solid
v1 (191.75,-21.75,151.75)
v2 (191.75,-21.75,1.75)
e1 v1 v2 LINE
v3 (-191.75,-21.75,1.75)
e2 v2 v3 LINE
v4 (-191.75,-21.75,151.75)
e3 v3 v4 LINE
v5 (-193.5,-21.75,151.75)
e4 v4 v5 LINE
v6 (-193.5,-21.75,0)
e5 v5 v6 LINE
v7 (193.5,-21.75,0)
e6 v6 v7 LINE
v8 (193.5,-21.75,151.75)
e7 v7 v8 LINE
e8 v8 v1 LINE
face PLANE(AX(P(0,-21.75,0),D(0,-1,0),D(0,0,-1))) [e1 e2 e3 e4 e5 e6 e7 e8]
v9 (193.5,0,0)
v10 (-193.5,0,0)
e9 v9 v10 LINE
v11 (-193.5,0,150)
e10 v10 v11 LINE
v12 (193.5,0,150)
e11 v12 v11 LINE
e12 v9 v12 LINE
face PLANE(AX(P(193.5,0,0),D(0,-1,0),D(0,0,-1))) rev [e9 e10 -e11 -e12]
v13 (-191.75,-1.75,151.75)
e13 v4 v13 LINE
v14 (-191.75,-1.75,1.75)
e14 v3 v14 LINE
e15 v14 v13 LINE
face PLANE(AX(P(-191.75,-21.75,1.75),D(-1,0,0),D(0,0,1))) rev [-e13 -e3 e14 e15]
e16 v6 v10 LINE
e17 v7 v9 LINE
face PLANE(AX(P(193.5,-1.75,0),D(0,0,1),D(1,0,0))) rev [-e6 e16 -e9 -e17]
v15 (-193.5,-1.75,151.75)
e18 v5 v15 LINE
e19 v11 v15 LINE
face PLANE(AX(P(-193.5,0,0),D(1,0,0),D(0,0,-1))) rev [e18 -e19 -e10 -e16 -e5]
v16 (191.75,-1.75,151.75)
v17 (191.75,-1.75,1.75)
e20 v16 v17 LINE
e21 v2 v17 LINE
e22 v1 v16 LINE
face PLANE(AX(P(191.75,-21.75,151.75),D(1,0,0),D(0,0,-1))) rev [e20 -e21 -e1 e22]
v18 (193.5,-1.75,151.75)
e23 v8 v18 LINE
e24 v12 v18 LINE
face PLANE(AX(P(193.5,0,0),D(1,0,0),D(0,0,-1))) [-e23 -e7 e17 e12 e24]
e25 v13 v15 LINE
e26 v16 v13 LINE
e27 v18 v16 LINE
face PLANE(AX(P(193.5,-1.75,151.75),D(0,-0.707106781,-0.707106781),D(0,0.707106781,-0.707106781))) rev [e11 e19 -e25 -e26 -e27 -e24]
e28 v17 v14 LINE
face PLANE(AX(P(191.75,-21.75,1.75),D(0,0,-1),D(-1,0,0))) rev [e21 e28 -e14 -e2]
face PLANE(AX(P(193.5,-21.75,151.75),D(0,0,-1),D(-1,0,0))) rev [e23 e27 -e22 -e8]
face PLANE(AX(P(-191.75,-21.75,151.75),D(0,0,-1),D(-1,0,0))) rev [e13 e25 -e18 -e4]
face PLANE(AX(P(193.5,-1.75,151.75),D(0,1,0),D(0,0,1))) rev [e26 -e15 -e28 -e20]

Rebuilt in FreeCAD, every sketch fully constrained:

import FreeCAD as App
import Part
import Sketcher
Q = App.Units.Quantity

doc = App.newDocument("Part")
params = doc.addObject("Spreadsheet::Sheet", "Params")
for row, (alias, value) in enumerate([
    ("sketch1_height", "150 mm"),
    ("sketch1_width", "1.75 mm"),
    ("pad1_length", "387 mm"),
    ("sketch2_width", "387 mm"),
    ("sketch2_height", "150 mm"),
    ("sketch2_width2", "383.5 mm"),
    ("sketch2_height2", "151.75 mm"),
    ("pad2_length", "20 mm"),
], start=1):
    params.set(f"A{row}", alias)
    params.set(f"B{row}", "=" + value)
    params.setAlias(f"B{row}", alias)

body = doc.addObject("PartDesign::Body", "Body")

sketch1 = body.newObject("Sketcher::SketchObject", "Sketch")
sketch1.AttachmentSupport = (doc.getObject("YZ_Plane"), [""])
sketch1.MapMode = "FlatFace"
sketch1.addGeometry([
    Part.LineSegment(App.Vector(0, 0, 0), App.Vector(0, 150, 0)),
    Part.LineSegment(App.Vector(0, 150, 0), App.Vector(-1.8, 151.8, 0)),
    Part.LineSegment(App.Vector(-1.8, 151.8, 0), App.Vector(-1.8, 0, 0)),
    Part.LineSegment(App.Vector(-1.8, 0, 0), App.Vector(0, 0, 0)),
], False)
sketch1.addConstraint([
    Sketcher.Constraint("Coincident", 0, 2, 1, 1),
    Sketcher.Constraint("Coincident", 1, 2, 2, 1),
    Sketcher.Constraint("Coincident", 2, 2, 3, 1),
    Sketcher.Constraint("Coincident", 3, 2, 0, 1),
    Sketcher.Constraint("Vertical", 0),
    Sketcher.Constraint("Vertical", 2),
    Sketcher.Constraint("Horizontal", 3),
    Sketcher.Constraint("Coincident", 3, 2, -1, 1),
    Sketcher.Constraint("DistanceY", 0, 1, 0, 2, Q("150 mm")),
    Sketcher.Constraint("Angle", 1, Q("135 deg")),
    Sketcher.Constraint("DistanceX", 3, 1, 3, 2, Q("1.75 mm")),
])
sketch1.setExpression("Constraints[8]", "Params.sketch1_height")
sketch1.setExpression("Constraints[10]", "Params.sketch1_width")
pad1 = body.newObject("PartDesign::Pad", "Pad")
pad1.Profile = sketch1
pad1.setExpression("Length", "Params.pad1_length")
pad1.Midplane = True

sketch2 = body.newObject("Sketcher::SketchObject", "Sketch001")
sketch2.AttachmentSupport = (doc.getObject("XZ_Plane"), [""])
sketch2.MapMode = "FlatFace"
sketch2.AttachmentOffset = App.Placement(App.Vector(0, 0, 1.75), App.Rotation())
sketch2.addGeometry([
    Part.LineSegment(App.Vector(-193.5, 151.8, 0), App.Vector(-193.5, 0, 0)),
    Part.LineSegment(App.Vector(-193.5, 0, 0), App.Vector(193.5, 0, 0)),
    Part.LineSegment(App.Vector(193.5, 0, 0), App.Vector(193.5, 151.8, 0)),
    Part.LineSegment(App.Vector(193.5, 151.8, 0), App.Vector(191.8, 151.8, 0)),
    Part.LineSegment(App.Vector(191.8, 151.8, 0), App.Vector(191.8, 1.8, 0)),
    Part.LineSegment(App.Vector(191.8, 1.8, 0), App.Vector(-191.8, 1.8, 0)),
    Part.LineSegment(App.Vector(-191.8, 1.8, 0), App.Vector(-191.8, 151.8, 0)),
    Part.LineSegment(App.Vector(-191.8, 151.8, 0), App.Vector(-193.5, 151.8, 0)),
], False)
sketch2.addConstraint([
    Sketcher.Constraint("Coincident", 0, 2, 1, 1),
    Sketcher.Constraint("Coincident", 1, 2, 2, 1),
    Sketcher.Constraint("Coincident", 2, 2, 3, 1),
    Sketcher.Constraint("Coincident", 3, 2, 4, 1),
    Sketcher.Constraint("Coincident", 4, 2, 5, 1),
    Sketcher.Constraint("Coincident", 5, 2, 6, 1),
    Sketcher.Constraint("Coincident", 6, 2, 7, 1),
    Sketcher.Constraint("Coincident", 7, 2, 0, 1),
    Sketcher.Constraint("Vertical", 0),
    Sketcher.Constraint("Horizontal", 1),
    Sketcher.Constraint("Vertical", 2),
    Sketcher.Constraint("Horizontal", 3),
    Sketcher.Constraint("Vertical", 4),
    Sketcher.Constraint("Horizontal", 5),
    Sketcher.Constraint("Vertical", 6),
    Sketcher.Constraint("Horizontal", 7),
    Sketcher.Constraint("Symmetric", 0, 2, 1, 2, -1, 1),
    Sketcher.Constraint("Symmetric", 3, 2, 6, 2, -2),
    Sketcher.Constraint("DistanceX", 1, 1, 1, 2, Q("387 mm")),
    Sketcher.Constraint("DistanceY", 4, 2, 4, 1, Q("150 mm")),
    Sketcher.Constraint("DistanceX", 5, 2, 5, 1, Q("383.5 mm")),
    Sketcher.Constraint("DistanceY", 0, 2, 0, 1, Q("151.75 mm")),
])
sketch2.setExpression("Constraints[18]", "Params.sketch2_width")
sketch2.setExpression("Constraints[19]", "Params.sketch2_height")
sketch2.setExpression("Constraints[20]", "Params.sketch2_width2")
sketch2.setExpression("Constraints[21]", "Params.sketch2_height2")
pad2 = body.newObject("PartDesign::Pad", "Pad001")
pad2.Profile = sketch2
pad2.setExpression("Length", "Params.pad2_length")

doc.recompute()
